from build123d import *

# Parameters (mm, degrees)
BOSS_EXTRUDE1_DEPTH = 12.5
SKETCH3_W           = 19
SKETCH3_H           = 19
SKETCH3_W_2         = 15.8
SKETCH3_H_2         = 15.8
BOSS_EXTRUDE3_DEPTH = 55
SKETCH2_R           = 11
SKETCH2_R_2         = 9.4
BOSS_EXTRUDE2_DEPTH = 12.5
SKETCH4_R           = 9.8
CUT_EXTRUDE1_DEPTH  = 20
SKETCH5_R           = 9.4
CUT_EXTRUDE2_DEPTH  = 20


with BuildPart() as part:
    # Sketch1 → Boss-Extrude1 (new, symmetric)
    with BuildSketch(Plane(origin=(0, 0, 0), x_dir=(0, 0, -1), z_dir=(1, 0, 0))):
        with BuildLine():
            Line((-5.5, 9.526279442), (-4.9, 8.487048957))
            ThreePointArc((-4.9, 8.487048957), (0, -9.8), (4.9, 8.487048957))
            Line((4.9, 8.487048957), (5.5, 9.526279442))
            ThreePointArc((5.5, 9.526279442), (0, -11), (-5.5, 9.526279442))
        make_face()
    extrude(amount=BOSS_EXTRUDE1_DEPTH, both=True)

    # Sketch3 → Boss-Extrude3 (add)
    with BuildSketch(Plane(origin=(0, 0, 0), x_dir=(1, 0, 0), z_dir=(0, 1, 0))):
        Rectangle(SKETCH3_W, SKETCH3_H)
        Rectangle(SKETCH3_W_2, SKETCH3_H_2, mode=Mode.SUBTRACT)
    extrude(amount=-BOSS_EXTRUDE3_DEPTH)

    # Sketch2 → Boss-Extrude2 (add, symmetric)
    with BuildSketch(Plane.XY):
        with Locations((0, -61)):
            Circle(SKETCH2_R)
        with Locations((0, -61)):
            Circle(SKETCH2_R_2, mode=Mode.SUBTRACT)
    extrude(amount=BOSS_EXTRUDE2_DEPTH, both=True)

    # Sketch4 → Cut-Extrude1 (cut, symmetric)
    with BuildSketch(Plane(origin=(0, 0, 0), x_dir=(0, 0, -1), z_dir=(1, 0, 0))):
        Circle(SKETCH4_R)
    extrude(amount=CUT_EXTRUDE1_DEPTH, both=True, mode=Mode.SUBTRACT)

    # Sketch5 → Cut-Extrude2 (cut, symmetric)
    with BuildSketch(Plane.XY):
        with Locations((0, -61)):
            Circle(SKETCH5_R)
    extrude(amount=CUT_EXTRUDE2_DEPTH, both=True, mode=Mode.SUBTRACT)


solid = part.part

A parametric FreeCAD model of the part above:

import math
import FreeCAD as App
import Part
import Sketcher
from FreeCAD import Vector
Q = App.Units.Quantity

doc = App.newDocument("Part")
body = doc.addObject("PartDesign::Body", "Body")

# Sketch on YZ plane
sketch1 = body.newObject("Sketcher::SketchObject", "Sketch")
sketch1.AttachmentSupport = (doc.getObject("YZ_Plane"), [""])
sketch1.MapMode = "FlatFace"
sketch1.addGeometry(Part.LineSegment(Vector(8.5, 4.9, 0), Vector(9.5, 5.5, 0)), False)
sketch1.addGeometry(Part.ArcOfCircle(Part.Circle(Vector(0, 0, 0), Vector(0, 0, 1), 11), math.radians(30), math.radians(330)), False)
sketch1.addGeometry(Part.LineSegment(Vector(9.5, -5.5, 0), Vector(8.5, -4.9, 0)), False)
sketch1.addGeometry(Part.ArcOfCircle(Part.Circle(Vector(0, 0, 0), Vector(0, 0, 1), 9.8), math.radians(30), math.radians(330)), False)
sketch1.addConstraint(Sketcher.Constraint("Coincident", 0, 2, 1, 1))
sketch1.addConstraint(Sketcher.Constraint("Coincident", 1, 2, 2, 1))
sketch1.addConstraint(Sketcher.Constraint("Coincident", 2, 2, 3, 2))
sketch1.addConstraint(Sketcher.Constraint("Coincident", 3, 1, 0, 1))
sketch1.addConstraint(Sketcher.Constraint("Coincident", 1, 3, -1, 1))
sketch1.addConstraint(Sketcher.Constraint("Coincident", 3, 3, -1, 1))
sketch1.addConstraint(Sketcher.Constraint("Vertical", 0, 2, 1, 2))
sketch1.addConstraint(Sketcher.Constraint("Vertical", 2, 2, 3, 1))
sketch1.addConstraint(Sketcher.Constraint("Radius", 1, Q("11 mm")))
sketch1.addConstraint(Sketcher.Constraint("Radius", 3, Q("9.8 mm")))
sketch1.addConstraint(Sketcher.Constraint("Angle", 0, Q("30 deg")))
sketch1.addConstraint(Sketcher.Constraint("DistanceY", 1, 2, 0, 2, Q("11 mm")))
pad1 = body.newObject("PartDesign::Pad", "Pad")
pad1.Profile = sketch1
pad1.Length = 25
pad1.Midplane = True

# Sketch on XZ plane
sketch2 = body.newObject("Sketcher::SketchObject", "Sketch001")
sketch2.AttachmentSupport = (doc.getObject("XZ_Plane"), [""])
sketch2.MapMode = "FlatFace"
sketch2.addGeometry(Part.LineSegment(Vector(-10, -10, 0), Vector(-10, 10, 0)), False)
sketch2.addGeometry(Part.LineSegment(Vector(-10, 10, 0), Vector(10, 10, 0)), False)
sketch2.addGeometry(Part.LineSegment(Vector(10, 10, 0), Vector(10, -10, 0)), False)
sketch2.addGeometry(Part.LineSegment(Vector(10, -10, 0), Vector(-10, -10, 0)), False)
sketch2.addGeometry(Part.LineSegment(Vector(8, 8, 0), Vector(-8, 8, 0)), False)
sketch2.addGeometry(Part.LineSegment(Vector(-8, 8, 0), Vector(-8, -8, 0)), False)
sketch2.addGeometry(Part.LineSegment(Vector(-8, -8, 0), Vector(8, -8, 0)), False)
sketch2.addGeometry(Part.LineSegment(Vector(8, -8, 0), Vector(8, 8, 0)), False)
sketch2.addConstraint(Sketcher.Constraint("Coincident", 0, 2, 1, 1))
sketch2.addConstraint(Sketcher.Constraint("Coincident", 1, 2, 2, 1))
sketch2.addConstraint(Sketcher.Constraint("Coincident", 2, 2, 3, 1))
sketch2.addConstraint(Sketcher.Constraint("Coincident", 3, 2, 0, 1))
sketch2.addConstraint(Sketcher.Constraint("Coincident", 4, 2, 5, 1))
sketch2.addConstraint(Sketcher.Constraint("Coincident", 5, 2, 6, 1))
sketch2.addConstraint(Sketcher.Constraint("Coincident", 6, 2, 7, 1))
sketch2.addConstraint(Sketcher.Constraint("Coincident", 7, 2, 4, 1))
sketch2.addConstraint(Sketcher.Constraint("Vertical", 0))
sketch2.addConstraint(Sketcher.Constraint("Horizontal", 1))
sketch2.addConstraint(Sketcher.Constraint("Vertical", 2))
sketch2.addConstraint(Sketcher.Constraint("Horizontal", 3))
sketch2.addConstraint(Sketcher.Constraint("Horizontal", 4))
sketch2.addConstraint(Sketcher.Constraint("Vertical", 5))
sketch2.addConstraint(Sketcher.Constraint("Horizontal", 6))
sketch2.addConstraint(Sketcher.Constraint("Vertical", 7))
sketch2.addConstraint(Sketcher.Constraint("Symmetric", 0, 2, 2, 2, -1, 1))
sketch2.addConstraint(Sketcher.Constraint("Symmetric", 4, 2, 6, 2, -1, 1))
sketch2.addConstraint(Sketcher.Constraint("Equal", 3, 0))
sketch2.addConstraint(Sketcher.Constraint("Equal", 6, 5))
sketch2.addConstraint(Sketcher.Constraint("DistanceX", 1, 1, 1, 2, Q("19 mm")))
sketch2.addConstraint(Sketcher.Constraint("DistanceX", 4, 2, 4, 1, Q("15.8 mm")))
pad2 = body.newObject("PartDesign::Pad", "Pad001")
pad2.Profile = sketch2
pad2.Length = 55

# Sketch on XY plane
sketch3 = body.newObject("Sketcher::SketchObject", "Sketch002")
sketch3.AttachmentSupport = (doc.getObject("XY_Plane"), [""])
sketch3.MapMode = "FlatFace"
sketch3.addGeometry(Part.Circle(Vector(0, -61, 0), Vector(0, 0, 1), 11), False)
sketch3.addGeometry(Part.Circle(Vector(0, -61, 0), Vector(0, 0, 1), 9), False)
sketch3.addConstraint(Sketcher.Constraint("Coincident", 1, 3, 0, 3))
sketch3.addConstraint(Sketcher.Constraint("PointOnObject", 0, 3, -2))
sketch3.addConstraint(Sketcher.Constraint("Diameter", 0, Q("22 mm")))
sketch3.addConstraint(Sketcher.Constraint("Diameter", 1, Q("18.8 mm")))
sketch3.addConstraint(Sketcher.Constraint("DistanceY", 0, 3, -1, 1, Q("61 mm")))
pad3 = body.newObject("PartDesign::Pad", "Pad002")
pad3.Profile = sketch3
pad3.Length = 25
pad3.Midplane = True

# Sketch on YZ plane
sketch4 = body.newObject("Sketcher::SketchObject", "Sketch003")
sketch4.AttachmentSupport = (doc.getObject("YZ_Plane"), [""])
sketch4.MapMode = "FlatFace"
sketch4.addGeometry(Part.Circle(Vector(0, 0, 0), Vector(0, 0, 1), 10), False)
sketch4.addConstraint(Sketcher.Constraint("Coincident", 0, 3, -1, 1))
sketch4.addConstraint(Sketcher.Constraint("Diameter", 0, Q("19.6 mm")))
pocket1 = body.newObject("PartDesign::Pocket", "Pocket")
pocket1.Profile = sketch4
pocket1.Length = 40
pocket1.Midplane = True

# Sketch on XY plane
sketch5 = body.newObject("Sketcher::SketchObject", "Sketch004")
sketch5.AttachmentSupport = (doc.getObject("XY_Plane"), [""])
sketch5.MapMode = "FlatFace"
sketch5.addGeometry(Part.Circle(Vector(0, -61, 0), Vector(0, 0, 1), 9), False)
sketch5.addConstraint(Sketcher.Constraint("PointOnObject", 0, 3, -2))
sketch5.addConstraint(Sketcher.Constraint("Diameter", 0, Q("18.8 mm")))
sketch5.addConstraint(Sketcher.Constraint("DistanceY", 0, 3, -1, 1, Q("61 mm")))
pocket2 = body.newObject("PartDesign::Pocket", "Pocket001")
pocket2.Profile = sketch5
pocket2.Length = 40
pocket2.Midplane = True

doc.recompute()
